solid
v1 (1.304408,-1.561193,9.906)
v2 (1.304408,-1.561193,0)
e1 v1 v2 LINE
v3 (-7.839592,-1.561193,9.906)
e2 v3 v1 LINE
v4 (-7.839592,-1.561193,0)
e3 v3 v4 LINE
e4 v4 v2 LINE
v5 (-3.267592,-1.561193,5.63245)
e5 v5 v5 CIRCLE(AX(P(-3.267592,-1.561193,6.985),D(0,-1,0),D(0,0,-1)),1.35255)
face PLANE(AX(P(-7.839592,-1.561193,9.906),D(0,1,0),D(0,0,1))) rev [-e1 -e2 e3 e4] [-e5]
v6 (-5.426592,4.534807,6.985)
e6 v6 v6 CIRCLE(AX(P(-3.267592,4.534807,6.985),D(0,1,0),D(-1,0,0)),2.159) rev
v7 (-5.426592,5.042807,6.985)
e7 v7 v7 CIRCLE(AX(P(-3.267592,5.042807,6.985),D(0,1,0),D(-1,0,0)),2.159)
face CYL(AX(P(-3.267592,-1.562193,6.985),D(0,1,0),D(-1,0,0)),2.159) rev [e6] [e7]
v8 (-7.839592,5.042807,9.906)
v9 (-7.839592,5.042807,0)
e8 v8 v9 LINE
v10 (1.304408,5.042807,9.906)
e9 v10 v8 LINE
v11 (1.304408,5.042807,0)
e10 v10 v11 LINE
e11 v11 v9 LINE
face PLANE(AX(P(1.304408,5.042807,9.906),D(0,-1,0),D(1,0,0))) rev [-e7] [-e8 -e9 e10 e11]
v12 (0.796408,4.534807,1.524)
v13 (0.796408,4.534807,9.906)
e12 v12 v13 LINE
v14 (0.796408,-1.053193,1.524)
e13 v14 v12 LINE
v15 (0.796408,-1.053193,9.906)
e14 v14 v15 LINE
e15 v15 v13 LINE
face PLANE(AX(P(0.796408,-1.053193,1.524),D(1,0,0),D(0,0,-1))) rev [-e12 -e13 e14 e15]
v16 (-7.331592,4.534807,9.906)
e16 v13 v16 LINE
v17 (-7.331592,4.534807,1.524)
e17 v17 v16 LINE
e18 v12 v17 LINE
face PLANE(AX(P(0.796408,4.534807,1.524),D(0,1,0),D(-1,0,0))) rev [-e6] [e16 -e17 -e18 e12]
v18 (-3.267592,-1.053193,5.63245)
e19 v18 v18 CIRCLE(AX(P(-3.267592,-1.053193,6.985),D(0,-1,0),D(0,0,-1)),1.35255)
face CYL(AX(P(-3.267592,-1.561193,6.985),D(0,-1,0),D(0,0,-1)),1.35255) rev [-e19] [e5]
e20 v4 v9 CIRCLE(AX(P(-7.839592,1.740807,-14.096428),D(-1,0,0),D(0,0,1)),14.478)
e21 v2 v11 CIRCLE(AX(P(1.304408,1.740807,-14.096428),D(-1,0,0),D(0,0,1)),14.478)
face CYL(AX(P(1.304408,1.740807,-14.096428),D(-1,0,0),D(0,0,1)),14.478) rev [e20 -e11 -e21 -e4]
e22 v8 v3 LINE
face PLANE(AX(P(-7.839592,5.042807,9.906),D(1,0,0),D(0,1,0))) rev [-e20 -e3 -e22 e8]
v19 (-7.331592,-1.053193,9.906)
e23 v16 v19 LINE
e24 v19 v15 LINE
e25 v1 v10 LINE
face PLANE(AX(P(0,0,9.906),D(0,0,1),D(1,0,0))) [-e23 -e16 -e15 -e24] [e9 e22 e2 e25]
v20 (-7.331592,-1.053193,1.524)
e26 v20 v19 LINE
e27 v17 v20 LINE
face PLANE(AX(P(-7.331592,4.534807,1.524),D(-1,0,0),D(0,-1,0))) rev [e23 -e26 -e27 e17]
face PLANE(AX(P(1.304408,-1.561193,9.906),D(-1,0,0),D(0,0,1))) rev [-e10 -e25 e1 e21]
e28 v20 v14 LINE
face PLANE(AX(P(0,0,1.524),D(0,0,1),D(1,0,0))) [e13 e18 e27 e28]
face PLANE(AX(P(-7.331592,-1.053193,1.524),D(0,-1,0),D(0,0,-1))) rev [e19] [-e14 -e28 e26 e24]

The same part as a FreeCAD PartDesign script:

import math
import FreeCAD as App
import Part
import Sketcher
Q = App.Units.Quantity

doc = App.newDocument("Part")
body = doc.addObject("PartDesign::Body", "Body")

sketch1 = body.newObject("Sketcher::SketchObject", "Sketch")
sketch1.AttachmentSupport = (doc.getObject("XY_Plane"), [""])
sketch1.MapMode = "FlatFace"
sketch1.addGeometry(Part.LineSegment(App.Vector(-7.839592, 5.042807, 0), App.Vector(-7.839592, -1.561193, 0)), False)
sketch1.addGeometry(Part.LineSegment(App.Vector(-7.839592, -1.561193, 0), App.Vector(1.304408, -1.561193, 0)), False)
sketch1.addGeometry(Part.LineSegment(App.Vector(1.304408, -1.561193, 0), App.Vector(1.304408, 5.042807, 0)), False)
sketch1.addGeometry(Part.LineSegment(App.Vector(1.304408, 5.042807, 0), App.Vector(-7.839592, 5.042807, 0)), False)
sketch1.addConstraint(Sketcher.Constraint("Coincident", 0, 2, 1, 1))
sketch1.addConstraint(Sketcher.Constraint("Coincident", 1, 2, 2, 1))
sketch1.addConstraint(Sketcher.Constraint("Coincident", 2, 2, 3, 1))
sketch1.addConstraint(Sketcher.Constraint("Coincident", 3, 2, 0, 1))
sketch1.addConstraint(Sketcher.Constraint("Vertical", 0))
sketch1.addConstraint(Sketcher.Constraint("Horizontal", 1))
sketch1.addConstraint(Sketcher.Constraint("Vertical", 2))
sketch1.addConstraint(Sketcher.Constraint("Horizontal", 3))
sketch1.addConstraint(Sketcher.Constraint("DistanceX", 1, 1, 1, 2, Q("0.36 in")))
sketch1.addConstraint(Sketcher.Constraint("DistanceY", 0, 2, 0, 1, Q("0.26 in")))
sketch1.addConstraint(Sketcher.Constraint("DistanceX", 0, 2, -1, 1, 7.839592))
sketch1.addConstraint(Sketcher.Constraint("DistanceY", 0, 2, -1, 1, 1.561193))
pad1 = body.newObject("PartDesign::Pad", "Pad")
pad1.Profile = sketch1
pad1.Length = Q("0.39 in")

sketch2 = body.newObject("Sketcher::SketchObject", "Sketch001")
sketch2.AttachmentSupport = (doc.getObject("XY_Plane"), [""])
sketch2.MapMode = "FlatFace"
sketch2.AttachmentOffset = App.Placement(App.Vector(0, 0, 0.39 * 25.4), App.Rotation())
sketch2.addGeometry(Part.LineSegment(App.Vector(-7.331592, 4.534807, 0), App.Vector(-7.331592, -1.053193, 0)), False)
sketch2.addGeometry(Part.LineSegment(App.Vector(-7.331592, -1.053193, 0), App.Vector(0.796408, -1.053193, 0)), False)
sketch2.addGeometry(Part.LineSegment(App.Vector(0.796408, -1.053193, 0), App.Vector(0.796408, 4.534807, 0)), False)
sketch2.addGeometry(Part.LineSegment(App.Vector(0.796408, 4.534807, 0), App.Vector(-7.331592, 4.534807, 0)), False)
sketch2.addConstraint(Sketcher.Constraint("Coincident", 0, 2, 1, 1))
sketch2.addConstraint(Sketcher.Constraint("Coincident", 1, 2, 2, 1))
sketch2.addConstraint(Sketcher.Constraint("Coincident", 2, 2, 3, 1))
sketch2.addConstraint(Sketcher.Constraint("Coincident", 3, 2, 0, 1))
sketch2.addConstraint(Sketcher.Constraint("Vertical", 0))
sketch2.addConstraint(Sketcher.Constraint("Horizontal", 1))
sketch2.addConstraint(Sketcher.Constraint("Vertical", 2))
sketch2.addConstraint(Sketcher.Constraint("Horizontal", 3))
sketch2.addConstraint(Sketcher.Constraint("DistanceX", 1, 1, 1, 2, Q("0.32 in")))
sketch2.addConstraint(Sketcher.Constraint("DistanceY", 0, 2, 0, 1, Q("0.22 in")))
sketch2.addConstraint(Sketcher.Constraint("DistanceX", 0, 2, -1, 1, 7.331592))
sketch2.addConstraint(Sketcher.Constraint("DistanceY", 0, 2, -1, 1, 1.053193))
pocket1 = body.newObject("PartDesign::Pocket", "Pocket")
pocket1.Profile = sketch2
pocket1.Length = Q("0.33 in")

sketch3 = body.newObject("Sketcher::SketchObject", "Sketch002")
sketch3.AttachmentSupport = (doc.getObject("YZ_Plane"), [""])
sketch3.MapMode = "FlatFace"
sketch3.AttachmentOffset = App.Placement(App.Vector(0, 0, -7.839592), App.Rotation())
sketch3.addGeometry(Part.LineSegment(App.Vector(5.042807, 0, 0), App.Vector(-1.561193, 0, 0)), False)
sketch3.addGeometry(Part.ArcOfCircle(Part.Circle(App.Vector(1.740807, -14.096428, 0), App.Vector(0, 0, 1), 14.478), math.radians(76.816519), math.radians(103.183481)), False)
sketch3.addConstraint(Sketcher.Constraint("Coincident", 0, 1, 1, 1))
sketch3.addConstraint(Sketcher.Constraint("Coincident", 1, 2, 0, 2))
sketch3.addConstraint(Sketcher.Constraint("Horizontal", 0))
sketch3.addConstraint(Sketcher.Constraint("PointOnObject", 0, 1, -1))
sketch3.addConstraint(Sketcher.Constraint("Radius", 1, Q("0.57 in")))
sketch3.addConstraint(Sketcher.Constraint("DistanceX", 0, 2, 0, 1, Q("0.26 in")))
sketch3.addConstraint(Sketcher.Constraint("DistanceX", -1, 1, 1, 3, 1.740807))
pocket2 = body.newObject("PartDesign::Pocket", "Pocket001")
pocket2.Profile = sketch3
pocket2.Type = "ThroughAll"
pocket2.Reversed = True

sketch4 = body.newObject("Sketcher::SketchObject", "Sketch003")
sketch4.AttachmentSupport = (doc.getObject("XZ_Plane"), [""])
sketch4.MapMode = "FlatFace"
sketch4.AttachmentOffset = App.Placement(App.Vector(0, 0, -5.042807), App.Rotation())
sketch4.addGeometry(Part.Circle(App.Vector(-3.267592, 6.985, 0), App.Vector(0, 0, 1), 2.159), False)
sketch4.addConstraint(Sketcher.Constraint("Diameter", 0, Q("0.17 in")))
sketch4.addConstraint(Sketcher.Constraint("DistanceY", -1, 1, 0, 3, Q("0.275 in")))
sketch4.addConstraint(Sketcher.Constraint("DistanceX", 0, 3, -1, 1, 3.267592))
pocket3 = body.newObject("PartDesign::Pocket", "Pocket002")
pocket3.Profile = sketch4
pocket3.Type = "UpToFirst"
pocket3.Reversed = True

sketch5 = body.newObject("Sketcher::SketchObject", "Sketch004")
sketch5.AttachmentSupport = (doc.getObject("XZ_Plane"), [""])
sketch5.MapMode = "FlatFace"
sketch5.AttachmentOffset = App.Placement(App.Vector(0, 0, 1.561193), App.Rotation())
sketch5.addGeometry(Part.Circle(App.Vector(-3.267592, 6.985, 0), App.Vector(0, 0, 1), 1.35255), False)
sketch5.addConstraint(Sketcher.Constraint("Diameter", 0, Q("0.1065 in")))
sketch5.addConstraint(Sketcher.Constraint("DistanceY", -1, 1, 0, 3, Q("0.275 in")))
sketch5.addConstraint(Sketcher.Constraint("DistanceX", 0, 3, -1, 1, 3.267592))
doc.recompute()
hole = body.newObject("PartDesign::Hole", "Hole")
hole.Profile = sketch5
hole.ThreadType = "None"
hole.Diameter = Q("0.1065 in")
hole.DepthType = "Dimension"
hole.Depth = Q("0.02 in")
hole.DrillPoint = "Flat"

doc.recompute()
